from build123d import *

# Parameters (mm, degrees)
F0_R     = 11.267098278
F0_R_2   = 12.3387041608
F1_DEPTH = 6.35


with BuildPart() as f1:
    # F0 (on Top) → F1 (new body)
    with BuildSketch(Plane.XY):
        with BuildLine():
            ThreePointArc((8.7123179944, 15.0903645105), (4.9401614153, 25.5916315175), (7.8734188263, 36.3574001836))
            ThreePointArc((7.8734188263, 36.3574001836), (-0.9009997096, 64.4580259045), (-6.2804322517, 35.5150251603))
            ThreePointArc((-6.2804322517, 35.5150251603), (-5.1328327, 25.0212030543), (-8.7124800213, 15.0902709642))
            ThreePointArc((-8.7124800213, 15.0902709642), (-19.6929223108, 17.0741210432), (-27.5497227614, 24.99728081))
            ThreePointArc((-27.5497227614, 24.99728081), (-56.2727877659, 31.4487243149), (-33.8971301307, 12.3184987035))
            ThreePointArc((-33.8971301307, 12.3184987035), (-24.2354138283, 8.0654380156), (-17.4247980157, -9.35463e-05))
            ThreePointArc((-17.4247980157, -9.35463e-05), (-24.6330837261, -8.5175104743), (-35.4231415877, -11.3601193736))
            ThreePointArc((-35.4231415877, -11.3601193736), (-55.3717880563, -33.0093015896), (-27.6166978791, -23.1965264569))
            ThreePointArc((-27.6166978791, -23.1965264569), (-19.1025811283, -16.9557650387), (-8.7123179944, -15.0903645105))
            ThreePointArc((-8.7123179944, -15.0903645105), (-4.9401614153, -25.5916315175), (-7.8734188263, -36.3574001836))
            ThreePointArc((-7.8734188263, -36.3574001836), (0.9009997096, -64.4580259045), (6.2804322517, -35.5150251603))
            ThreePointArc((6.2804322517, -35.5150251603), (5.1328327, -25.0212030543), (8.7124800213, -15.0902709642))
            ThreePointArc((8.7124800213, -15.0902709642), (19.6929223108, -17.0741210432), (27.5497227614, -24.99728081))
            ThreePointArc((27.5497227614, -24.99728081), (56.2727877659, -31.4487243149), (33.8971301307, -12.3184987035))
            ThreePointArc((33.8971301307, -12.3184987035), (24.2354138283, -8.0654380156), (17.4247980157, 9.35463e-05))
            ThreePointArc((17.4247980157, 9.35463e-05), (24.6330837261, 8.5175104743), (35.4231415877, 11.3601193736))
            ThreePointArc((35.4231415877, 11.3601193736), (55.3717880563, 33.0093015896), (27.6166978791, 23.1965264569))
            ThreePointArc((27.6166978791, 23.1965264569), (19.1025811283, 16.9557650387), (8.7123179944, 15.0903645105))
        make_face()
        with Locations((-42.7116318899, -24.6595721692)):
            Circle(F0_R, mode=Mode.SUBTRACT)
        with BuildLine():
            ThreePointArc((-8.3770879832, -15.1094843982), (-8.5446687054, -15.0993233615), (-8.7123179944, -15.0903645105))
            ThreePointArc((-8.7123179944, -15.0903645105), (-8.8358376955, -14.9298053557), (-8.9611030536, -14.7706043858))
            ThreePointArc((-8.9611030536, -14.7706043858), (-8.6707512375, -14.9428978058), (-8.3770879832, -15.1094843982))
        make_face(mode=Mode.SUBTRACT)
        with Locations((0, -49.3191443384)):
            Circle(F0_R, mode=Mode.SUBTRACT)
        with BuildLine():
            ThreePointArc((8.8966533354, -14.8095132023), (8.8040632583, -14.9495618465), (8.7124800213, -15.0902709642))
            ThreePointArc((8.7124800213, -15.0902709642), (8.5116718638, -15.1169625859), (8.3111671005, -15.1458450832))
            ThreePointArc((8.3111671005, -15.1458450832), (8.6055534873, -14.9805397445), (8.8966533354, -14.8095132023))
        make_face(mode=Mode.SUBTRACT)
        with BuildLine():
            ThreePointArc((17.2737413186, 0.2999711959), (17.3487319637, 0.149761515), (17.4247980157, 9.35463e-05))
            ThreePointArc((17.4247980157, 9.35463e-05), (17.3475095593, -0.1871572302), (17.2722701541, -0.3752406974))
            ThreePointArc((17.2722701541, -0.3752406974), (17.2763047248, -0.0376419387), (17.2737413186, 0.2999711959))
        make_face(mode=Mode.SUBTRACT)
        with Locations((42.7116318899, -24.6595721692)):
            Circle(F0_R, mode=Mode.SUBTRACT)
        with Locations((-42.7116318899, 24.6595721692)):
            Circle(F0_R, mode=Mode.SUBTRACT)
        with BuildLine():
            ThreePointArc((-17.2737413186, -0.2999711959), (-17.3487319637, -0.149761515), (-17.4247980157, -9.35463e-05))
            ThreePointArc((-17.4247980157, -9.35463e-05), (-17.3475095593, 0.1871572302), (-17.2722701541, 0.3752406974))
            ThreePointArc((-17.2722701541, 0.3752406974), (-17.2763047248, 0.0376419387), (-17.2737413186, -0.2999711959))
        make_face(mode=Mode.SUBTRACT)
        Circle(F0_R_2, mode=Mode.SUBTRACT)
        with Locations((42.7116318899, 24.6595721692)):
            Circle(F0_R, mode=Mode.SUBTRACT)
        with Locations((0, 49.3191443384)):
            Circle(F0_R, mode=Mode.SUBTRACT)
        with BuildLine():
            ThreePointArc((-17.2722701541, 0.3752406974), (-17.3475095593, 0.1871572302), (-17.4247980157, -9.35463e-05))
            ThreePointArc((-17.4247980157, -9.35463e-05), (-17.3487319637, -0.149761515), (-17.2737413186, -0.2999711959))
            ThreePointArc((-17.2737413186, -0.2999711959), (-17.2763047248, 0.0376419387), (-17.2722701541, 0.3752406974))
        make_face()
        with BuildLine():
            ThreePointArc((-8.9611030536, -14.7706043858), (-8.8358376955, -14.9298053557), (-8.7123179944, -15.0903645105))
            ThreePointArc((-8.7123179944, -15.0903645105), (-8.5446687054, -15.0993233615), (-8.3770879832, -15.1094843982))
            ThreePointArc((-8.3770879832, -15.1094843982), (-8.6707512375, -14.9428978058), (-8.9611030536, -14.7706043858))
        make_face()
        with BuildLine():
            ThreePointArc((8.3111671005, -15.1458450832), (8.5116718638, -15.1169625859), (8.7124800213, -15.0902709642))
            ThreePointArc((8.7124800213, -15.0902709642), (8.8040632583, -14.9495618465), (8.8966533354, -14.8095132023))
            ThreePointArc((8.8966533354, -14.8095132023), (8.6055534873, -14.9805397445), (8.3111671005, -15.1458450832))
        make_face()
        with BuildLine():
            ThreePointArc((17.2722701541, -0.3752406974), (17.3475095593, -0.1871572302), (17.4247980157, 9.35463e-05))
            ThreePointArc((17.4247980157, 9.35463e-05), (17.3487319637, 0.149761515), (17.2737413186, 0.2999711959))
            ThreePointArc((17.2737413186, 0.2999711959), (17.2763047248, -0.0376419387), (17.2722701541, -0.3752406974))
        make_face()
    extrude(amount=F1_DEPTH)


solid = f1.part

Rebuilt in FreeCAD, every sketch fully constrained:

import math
import FreeCAD as App
import Part
import Sketcher
Q = App.Units.Quantity

doc = App.newDocument("Part")
body = doc.addObject("PartDesign::Body", "Body")

# Sketch on XY plane
sketch1 = body.newObject("Sketcher::SketchObject", "Sketch")
sketch1.AttachmentSupport = (doc.getObject("XY_Plane"), [""])
sketch1.MapMode = "FlatFace"
sketch1.addGeometry(Part.ArcOfCircle(Part.Circle(App.Vector(38, 11, 0), App.Vector(0, 0, 1), 23), math.radians(-153), math.radians(-101)), False)
sketch1.addGeometry(Part.ArcOfCircle(Part.Circle(App.Vector(35, -7, 0), App.Vector(0, 0, 1), 19), math.radians(87), math.radians(157)), False)
sketch1.addGeometry(Part.ArcOfCircle(Part.Circle(App.Vector(43, 25, 0), App.Vector(0, 0, 1), 15), math.radians(-119), math.radians(186)), False)
sketch1.addGeometry(Part.ArcOfCircle(Part.Circle(App.Vector(10, 38, 0), App.Vector(0, 0, 1), 23), math.radians(-93), math.radians(-41)), False)
sketch1.addGeometry(Part.ArcOfCircle(Part.Circle(App.Vector(23, 26, 0), App.Vector(0, 0, 1), 19), math.radians(147), math.radians(217)), False)
sketch1.addGeometry(Part.ArcOfCircle(Part.Circle(App.Vector(0, 49, 0), App.Vector(0, 0, 1), 15), math.radians(-59), math.radians(246)), False)
sketch1.addGeometry(Part.ArcOfCircle(Part.Circle(App.Vector(-28, 28, 0), App.Vector(0, 0, 1), 23), math.radians(-33), math.radians(19)), False)
sketch1.addGeometry(Part.ArcOfCircle(Part.Circle(App.Vector(-11, 33, 0), App.Vector(0, 0, 1), 19), math.radians(-153), math.radians(-83)), False)
sketch1.addGeometry(Part.ArcOfCircle(Part.Circle(App.Vector(-43, 25, 0), App.Vector(0, 0, 1), 15), math.radians(1), math.radians(306)), False)
sketch1.addGeometry(Part.ArcOfCircle(Part.Circle(App.Vector(-38, -11, 0), App.Vector(0, 0, 1), 23), math.radians(27), math.radians(79)), False)
sketch1.addGeometry(Part.ArcOfCircle(Part.Circle(App.Vector(-35, 7, 0), App.Vector(0, 0, 1), 19), math.radians(-93), math.radians(-23)), False)
sketch1.addGeometry(Part.ArcOfCircle(Part.Circle(App.Vector(-43, -25, 0), App.Vector(0, 0, 1), 15), math.radians(61), math.radians(366)), False)
sketch1.addGeometry(Part.ArcOfCircle(Part.Circle(App.Vector(-10, -38, 0), App.Vector(0, 0, 1), 23), math.radians(87), math.radians(139)), False)
sketch1.addGeometry(Part.ArcOfCircle(Part.Circle(App.Vector(-23, -26, 0), App.Vector(0, 0, 1), 19), math.radians(-33), math.radians(37)), False)
sketch1.addGeometry(Part.ArcOfCircle(Part.Circle(App.Vector(0, -49, 0), App.Vector(0, 0, 1), 15), math.radians(121), math.radians(426)), False)
sketch1.addGeometry(Part.ArcOfCircle(Part.Circle(App.Vector(28, -28, 0), App.Vector(0, 0, 1), 23), math.radians(147), math.radians(199)), False)
sketch1.addGeometry(Part.ArcOfCircle(Part.Circle(App.Vector(11, -33, 0), App.Vector(0, 0, 1), 19), math.radians(27), math.radians(97)), False)
sketch1.addGeometry(Part.ArcOfCircle(Part.Circle(App.Vector(43, -25, 0), App.Vector(0, 0, 1), 15), math.radians(-179), math.radians(126)), False)
sketch1.addGeometry(Part.Circle(App.Vector(-43, -25, 0), App.Vector(0, 0, 1), 11), False)
sketch1.addGeometry(Part.Circle(App.Vector(0, -49, 0), App.Vector(0, 0, 1), 11), False)
sketch1.addGeometry(Part.Circle(App.Vector(43, -25, 0), App.Vector(0, 0, 1), 11), False)
sketch1.addGeometry(Part.Circle(App.Vector(-43, 25, 0), App.Vector(0, 0, 1), 11), False)
sketch1.addGeometry(Part.Circle(App.Vector(0, 0, 0), App.Vector(0, 0, 1), 12), False)
sketch1.addGeometry(Part.Circle(App.Vector(43, 25, 0), App.Vector(0, 0, 1), 11), False)
sketch1.addGeometry(Part.Circle(App.Vector(0, 49, 0), App.Vector(0, 0, 1), 11), False)
sketch1.addConstraint(Sketcher.Constraint("Coincident", 0, 1, 1, 2))
sketch1.addConstraint(Sketcher.Constraint("Coincident", 1, 1, 2, 1))
sketch1.addConstraint(Sketcher.Constraint("Coincident", 2, 2, 3, 2))
sketch1.addConstraint(Sketcher.Constraint("Coincident", 3, 1, 4, 2))
sketch1.addConstraint(Sketcher.Constraint("Coincident", 4, 1, 5, 1))
sketch1.addConstraint(Sketcher.Constraint("Coincident", 5, 2, 6, 2))
sketch1.addConstraint(Sketcher.Constraint("Coincident", 6, 1, 7, 2))
sketch1.addConstraint(Sketcher.Constraint("Coincident", 7, 1, 8, 1))
sketch1.addConstraint(Sketcher.Constraint("Coincident", 8, 2, 9, 2))
sketch1.addConstraint(Sketcher.Constraint("Coincident", 9, 1, 10, 2))
sketch1.addConstraint(Sketcher.Constraint("Coincident", 10, 1, 11, 1))
sketch1.addConstraint(Sketcher.Constraint("Coincident", 11, 2, 12, 2))
sketch1.addConstraint(Sketcher.Constraint("Coincident", 12, 1, 13, 2))
sketch1.addConstraint(Sketcher.Constraint("Coincident", 13, 1, 14, 1))
sketch1.addConstraint(Sketcher.Constraint("Coincident", 14, 2, 15, 2))
sketch1.addConstraint(Sketcher.Constraint("Coincident", 15, 1, 16, 2))
sketch1.addConstraint(Sketcher.Constraint("Coincident", 16, 1, 17, 1))
sketch1.addConstraint(Sketcher.Constraint("Coincident", 17, 2, 0, 2))
sketch1.addConstraint(Sketcher.Constraint("Coincident", 22, 3, -1, 1))
sketch1.addConstraint(Sketcher.Constraint("Coincident", 18, 3, 11, 3))
sketch1.addConstraint(Sketcher.Constraint("Coincident", 19, 3, 14, 3))
sketch1.addConstraint(Sketcher.Constraint("Coincident", 20, 3, 17, 3))
sketch1.addConstraint(Sketcher.Constraint("Coincident", 21, 3, 8, 3))
sketch1.addConstraint(Sketcher.Constraint("Coincident", 23, 3, 2, 3))
sketch1.addConstraint(Sketcher.Constraint("Coincident", 24, 3, 5, 3))
sketch1.addConstraint(Sketcher.Constraint("Equal", 0, 3))
sketch1.addConstraint(Sketcher.Constraint("Equal", 1, 4))
sketch1.addConstraint(Sketcher.Constraint("Equal", 2, 5))
sketch1.addConstraint(Sketcher.Constraint("Equal", 3, 6))
sketch1.addConstraint(Sketcher.Constraint("Equal", 4, 7))
sketch1.addConstraint(Sketcher.Constraint("Equal", 5, 8))
sketch1.addConstraint(Sketcher.Constraint("Equal", 6, 9))
sketch1.addConstraint(Sketcher.Constraint("Equal", 7, 10))
sketch1.addConstraint(Sketcher.Constraint("Equal", 8, 11))
sketch1.addConstraint(Sketcher.Constraint("Equal", 9, 12))
sketch1.addConstraint(Sketcher.Constraint("Equal", 10, 13))
sketch1.addConstraint(Sketcher.Constraint("Equal", 11, 14))
sketch1.addConstraint(Sketcher.Constraint("Equal", 12, 15))
sketch1.addConstraint(Sketcher.Constraint("Equal", 13, 16))
sketch1.addConstraint(Sketcher.Constraint("Equal", 14, 17))
sketch1.addConstraint(Sketcher.Constraint("Equal", 18, 19))
sketch1.addConstraint(Sketcher.Constraint("Equal", 19, 20))
sketch1.addConstraint(Sketcher.Constraint("Equal", 20, 21))
sketch1.addConstraint(Sketcher.Constraint("Equal", 21, 23))
sketch1.addConstraint(Sketcher.Constraint("Equal", 23, 24))
sketch1.addConstraint(Sketcher.Constraint("Symmetric", 0, 3, 9, 3, -1, 1))
sketch1.addConstraint(Sketcher.Constraint("Symmetric", 1, 3, 10, 3, -1, 1))
sketch1.addConstraint(Sketcher.Constraint("Symmetric", 2, 3, 11, 3, -1, 1))
sketch1.addConstraint(Sketcher.Constraint("Symmetric", 3, 3, 12, 3, -1, 1))
sketch1.addConstraint(Sketcher.Constraint("Symmetric", 4, 3, 13, 3, -1, 1))
sketch1.addConstraint(Sketcher.Constraint("Symmetric", 5, 3, 14, 3, -1, 1))
sketch1.addConstraint(Sketcher.Constraint("Symmetric", 6, 3, 15, 3, -1, 1))
sketch1.addConstraint(Sketcher.Constraint("Symmetric", 7, 3, 16, 3, -1, 1))
sketch1.addConstraint(Sketcher.Constraint("Symmetric", 8, 3, 17, 3, -1, 1))
sketch1.addConstraint(Sketcher.Constraint("Symmetric", 2, 3, 8, 3, -2))
sketch1.addConstraint(Sketcher.Constraint("PointOnObject", 5, 3, -2))
sketch1.addConstraint(Sketcher.Constraint("Diameter", 22, Q("24.677408 mm")))
sketch1.addConstraint(Sketcher.Constraint("Radius", 0, Q("23.40804 mm")))
sketch1.addConstraint(Sketcher.Constraint("Radius", 1, Q("18.553518 mm")))
sketch1.addConstraint(Sketcher.Constraint("Radius", 2, Q("15.16567 mm")))
sketch1.addConstraint(Sketcher.Constraint("Diameter", 18, Q("22.534197 mm")))
sketch1.addConstraint(Sketcher.Constraint("DistanceY", -1, 1, 7, 3, Q("33.4951 mm")))
sketch1.addConstraint(Sketcher.Constraint("DistanceX", -1, 1, 0, 1, Q("17.424798 mm")))
sketch1.addConstraint(Sketcher.Constraint("DistanceY", -1, 1, 4, 1, Q("36.3574 mm")))
sketch1.addConstraint(Sketcher.Constraint("DistanceY", -1, 1, 8, 2, Q("12.318499 mm")))
sketch1.addConstraint(Sketcher.Constraint("DistanceX", 1, 3, 0, 3, Q("3.718302 mm")))
sketch1.addConstraint(Sketcher.Constraint("DistanceY", 1, 3, 4, 3, Q("33.4951 mm")))
sketch1.addConstraint(Sketcher.Constraint("DistanceY", 11, 3, 6, 3, Q("52.448501 mm")))
sketch1.addConstraint(Sketcher.Constraint("DistanceY", 2, 2, 4, 3, Q("3.126398 mm")))
sketch1.addConstraint(Sketcher.Constraint("DistanceX", 6, 1, 3, 1, Q("17.424798 mm")))
sketch1.addConstraint(Sketcher.Constraint("DistanceX", 8, 3, 8, 2, Q("8.814502 mm")))
sketch1.addConstraint(Sketcher.Constraint("DistanceX", -1, 1, 2, 3, Q("42.711632 mm")))
sketch1.addConstraint(Sketcher.Constraint("DistanceX", 6, 3, -1, 1, Q("28.376671 mm")))
sketch1.addConstraint(Sketcher.Constraint("DistanceX", 7, 3, -1, 1, Q("11.05669 mm")))
sketch1.addConstraint(Sketcher.Constraint("DistanceX", -1, 1, 1, 1, Q("35.423142 mm")))
sketch1.addConstraint(Sketcher.Constraint("DistanceX", -1, 1, 4, 1, Q("7.873419 mm")))
pad1 = body.newObject("PartDesign::Pad", "Pad")
pad1.Profile = sketch1
pad1.Length = Q("0.25 in")

doc.recompute()
